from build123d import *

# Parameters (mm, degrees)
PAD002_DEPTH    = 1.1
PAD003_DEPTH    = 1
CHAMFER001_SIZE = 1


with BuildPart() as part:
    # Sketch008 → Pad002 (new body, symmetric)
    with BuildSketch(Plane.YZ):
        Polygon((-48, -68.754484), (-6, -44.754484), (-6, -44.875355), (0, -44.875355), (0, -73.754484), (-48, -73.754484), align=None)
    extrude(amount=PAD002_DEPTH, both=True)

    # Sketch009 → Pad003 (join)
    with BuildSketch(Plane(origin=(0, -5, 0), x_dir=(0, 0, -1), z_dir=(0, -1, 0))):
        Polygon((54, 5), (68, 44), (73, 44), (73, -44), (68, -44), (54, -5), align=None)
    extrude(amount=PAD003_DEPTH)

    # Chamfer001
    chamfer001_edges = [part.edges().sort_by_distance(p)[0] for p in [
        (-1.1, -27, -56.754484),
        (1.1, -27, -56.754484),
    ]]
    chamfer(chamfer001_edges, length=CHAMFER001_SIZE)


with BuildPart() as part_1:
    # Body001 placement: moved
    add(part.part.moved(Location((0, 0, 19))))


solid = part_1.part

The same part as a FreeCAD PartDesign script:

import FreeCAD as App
import Part
import Sketcher
Q = App.Units.Quantity


def edges_at(feature, points):
    """Names of the edges that pass closest to the given points."""
    edges = feature.Shape.Edges
    near = lambda p: min(range(len(edges)), key=lambda i: edges[i].distToShape(Part.Vertex(*p))[0])
    return sorted({f"Edge{near(p) + 1}" for p in points})

doc = App.newDocument("Part")
params = doc.addObject("Spreadsheet::Sheet", "Params")
for row, (alias, value) in enumerate([
    ("sketch1_width", "48 mm"),
    ("sketch1_width2", "6 mm"),
    ("sketch1_height", "5 mm"),
    ("pad1_length", "2.2 mm"),
    ("sketch2_width", "10 mm"),
    ("sketch2_width2", "88 mm"),
    ("sketch2_height", "5 mm"),
    ("pad2_length", "1 mm"),
    ("chamfer_size", "1 mm"),
], start=1):
    params.set(f"A{row}", alias)
    params.set(f"B{row}", "=" + value)
    params.setAlias(f"B{row}", alias)

body = doc.addObject("PartDesign::Body", "Body")

sketch1 = doc.addObject("Sketcher::SketchObject", "Sketch")
body.addObject(sketch1)
sketch1.AttachmentSupport = (doc.YZ_Plane, [""])
sketch1.MapMode = "FlatFace"
sketch1.addGeometry(Part.LineSegment(App.Vector(-6, -44.75, 0), App.Vector(-48, -68.75, 0)), False)
sketch1.addGeometry(Part.LineSegment(App.Vector(-48, -68.75, 0), App.Vector(-48, -73.75, 0)), False)
sketch1.addGeometry(Part.LineSegment(App.Vector(-48, -73.75, 0), App.Vector(0, -73.75, 0)), False)
sketch1.addGeometry(Part.LineSegment(App.Vector(0, -73.75, 0), App.Vector(0, -44.88, 0)), False)
sketch1.addGeometry(Part.LineSegment(App.Vector(0, -44.88, 0), App.Vector(-6, -44.88, 0)), False)
sketch1.addGeometry(Part.LineSegment(App.Vector(-6, -44.88, 0), App.Vector(-6, -44.75, 0)), False)
sketch1.addConstraint(Sketcher.Constraint("Coincident", 0, 2, 1, 1))
sketch1.addConstraint(Sketcher.Constraint("Coincident", 1, 2, 2, 1))
sketch1.addConstraint(Sketcher.Constraint("Coincident", 2, 2, 3, 1))
sketch1.addConstraint(Sketcher.Constraint("Coincident", 3, 2, 4, 1))
sketch1.addConstraint(Sketcher.Constraint("Coincident", 4, 2, 5, 1))
sketch1.addConstraint(Sketcher.Constraint("Coincident", 5, 2, 0, 1))
sketch1.addConstraint(Sketcher.Constraint("Vertical", 1))
sketch1.addConstraint(Sketcher.Constraint("Horizontal", 2))
sketch1.addConstraint(Sketcher.Constraint("Vertical", 3))
sketch1.addConstraint(Sketcher.Constraint("Horizontal", 4))
sketch1.addConstraint(Sketcher.Constraint("Vertical", 5))
sketch1.addConstraint(Sketcher.Constraint("PointOnObject", 2, 2, -2))
sketch1.addConstraint(Sketcher.Constraint("DistanceX", 2, 1, 2, 2, Q("48 mm")))
sketch1.addConstraint(Sketcher.Constraint("DistanceX", 4, 2, 4, 1, Q("6 mm")))
sketch1.addConstraint(Sketcher.Constraint("DistanceY", 1, 2, 1, 1, Q("5 mm")))
sketch1.addConstraint(Sketcher.Constraint("DistanceY", 2, 2, 5, 2, Q("29 mm")))
sketch1.addConstraint(Sketcher.Constraint("DistanceY", 3, 1, 3, 2, Q("28.879129 mm")))
sketch1.addConstraint(Sketcher.Constraint("DistanceY", 0, 2, -1, 1, Q("68.754484 mm")))
sketch1.setExpression("Constraints[12]", "Params.sketch1_width")
sketch1.setExpression("Constraints[13]", "Params.sketch1_width2")
sketch1.setExpression("Constraints[14]", "Params.sketch1_height")
pad1 = doc.addObject("PartDesign::Pad", "Pad")
body.addObject(pad1)
pad1.Profile = sketch1
pad1.setExpression("Length", "Params.pad1_length")
pad1.Midplane = True

sketch2 = doc.addObject("Sketcher::SketchObject", "Sketch001")
body.addObject(sketch2)
sketch2.AttachmentSupport = (doc.XZ_Plane, [""])
sketch2.MapMode = "FlatFace"
sketch2.AttachmentOffset = App.Placement(App.Vector(0, 0, 5), App.Rotation())
sketch2.addGeometry(Part.LineSegment(App.Vector(44, -68, 0), App.Vector(5, -54, 0)), False)
sketch2.addGeometry(Part.LineSegment(App.Vector(5, -54, 0), App.Vector(-5, -54, 0)), False)
sketch2.addGeometry(Part.LineSegment(App.Vector(-5, -54, 0), App.Vector(-44, -68, 0)), False)
sketch2.addGeometry(Part.LineSegment(App.Vector(-44, -68, 0), App.Vector(-44, -73, 0)), False)
sketch2.addGeometry(Part.LineSegment(App.Vector(-44, -73, 0), App.Vector(44, -73, 0)), False)
sketch2.addGeometry(Part.LineSegment(App.Vector(44, -73, 0), App.Vector(44, -68, 0)), False)
sketch2.addConstraint(Sketcher.Constraint("Coincident", 0, 2, 1, 1))
sketch2.addConstraint(Sketcher.Constraint("Coincident", 1, 2, 2, 1))
sketch2.addConstraint(Sketcher.Constraint("Coincident", 2, 2, 3, 1))
sketch2.addConstraint(Sketcher.Constraint("Coincident", 3, 2, 4, 1))
sketch2.addConstraint(Sketcher.Constraint("Coincident", 4, 2, 5, 1))
sketch2.addConstraint(Sketcher.Constraint("Coincident", 5, 2, 0, 1))
sketch2.addConstraint(Sketcher.Constraint("Horizontal", 1))
sketch2.addConstraint(Sketcher.Constraint("Vertical", 3))
sketch2.addConstraint(Sketcher.Constraint("Horizontal", 4))
sketch2.addConstraint(Sketcher.Constraint("Vertical", 5))
sketch2.addConstraint(Sketcher.Constraint("Symmetric", 2, 2, 5, 2, -2))
sketch2.addConstraint(Sketcher.Constraint("Equal", 0, 2))
sketch2.addConstraint(Sketcher.Constraint("DistanceX", 1, 2, 1, 1, Q("10 mm")))
sketch2.addConstraint(Sketcher.Constraint("DistanceX", 4, 1, 4, 2, Q("88 mm")))
sketch2.addConstraint(Sketcher.Constraint("DistanceY", 3, 2, 3, 1, Q("5 mm")))
sketch2.addConstraint(Sketcher.Constraint("DistanceY", 0, 2, -1, 1, Q("54 mm")))
sketch2.addConstraint(Sketcher.Constraint("DistanceY", 2, 2, -1, 1, Q("68 mm")))
sketch2.setExpression("Constraints[12]", "Params.sketch2_width")
sketch2.setExpression("Constraints[13]", "Params.sketch2_width2")
sketch2.setExpression("Constraints[14]", "Params.sketch2_height")
pad2 = doc.addObject("PartDesign::Pad", "Pad001")
body.addObject(pad2)
pad2.Profile = sketch2
pad2.setExpression("Length", "Params.pad2_length")
doc.recompute()

chamfer = doc.addObject("PartDesign::Chamfer", "Chamfer")
body.addObject(chamfer)
chamfer.Base = (pad2, edges_at(pad2, [(-1.1, -27, -56.754), (1.1, -27, -56.754)]))
chamfer.setExpression("Size", "Params.chamfer_size")
body2 = doc.addObject("PartDesign::Body", "Body001")
doc.recompute()

body.Placement = App.Placement(App.Vector(0, 0, 19), App.Rotation(App.Vector(0, 0, 1), 0))
boolean = doc.addObject("PartDesign::Boolean", "Boolean")
body2.addObject(boolean)
boolean.Type = "Fuse"
boolean.addObjects([body])

doc.recompute()
